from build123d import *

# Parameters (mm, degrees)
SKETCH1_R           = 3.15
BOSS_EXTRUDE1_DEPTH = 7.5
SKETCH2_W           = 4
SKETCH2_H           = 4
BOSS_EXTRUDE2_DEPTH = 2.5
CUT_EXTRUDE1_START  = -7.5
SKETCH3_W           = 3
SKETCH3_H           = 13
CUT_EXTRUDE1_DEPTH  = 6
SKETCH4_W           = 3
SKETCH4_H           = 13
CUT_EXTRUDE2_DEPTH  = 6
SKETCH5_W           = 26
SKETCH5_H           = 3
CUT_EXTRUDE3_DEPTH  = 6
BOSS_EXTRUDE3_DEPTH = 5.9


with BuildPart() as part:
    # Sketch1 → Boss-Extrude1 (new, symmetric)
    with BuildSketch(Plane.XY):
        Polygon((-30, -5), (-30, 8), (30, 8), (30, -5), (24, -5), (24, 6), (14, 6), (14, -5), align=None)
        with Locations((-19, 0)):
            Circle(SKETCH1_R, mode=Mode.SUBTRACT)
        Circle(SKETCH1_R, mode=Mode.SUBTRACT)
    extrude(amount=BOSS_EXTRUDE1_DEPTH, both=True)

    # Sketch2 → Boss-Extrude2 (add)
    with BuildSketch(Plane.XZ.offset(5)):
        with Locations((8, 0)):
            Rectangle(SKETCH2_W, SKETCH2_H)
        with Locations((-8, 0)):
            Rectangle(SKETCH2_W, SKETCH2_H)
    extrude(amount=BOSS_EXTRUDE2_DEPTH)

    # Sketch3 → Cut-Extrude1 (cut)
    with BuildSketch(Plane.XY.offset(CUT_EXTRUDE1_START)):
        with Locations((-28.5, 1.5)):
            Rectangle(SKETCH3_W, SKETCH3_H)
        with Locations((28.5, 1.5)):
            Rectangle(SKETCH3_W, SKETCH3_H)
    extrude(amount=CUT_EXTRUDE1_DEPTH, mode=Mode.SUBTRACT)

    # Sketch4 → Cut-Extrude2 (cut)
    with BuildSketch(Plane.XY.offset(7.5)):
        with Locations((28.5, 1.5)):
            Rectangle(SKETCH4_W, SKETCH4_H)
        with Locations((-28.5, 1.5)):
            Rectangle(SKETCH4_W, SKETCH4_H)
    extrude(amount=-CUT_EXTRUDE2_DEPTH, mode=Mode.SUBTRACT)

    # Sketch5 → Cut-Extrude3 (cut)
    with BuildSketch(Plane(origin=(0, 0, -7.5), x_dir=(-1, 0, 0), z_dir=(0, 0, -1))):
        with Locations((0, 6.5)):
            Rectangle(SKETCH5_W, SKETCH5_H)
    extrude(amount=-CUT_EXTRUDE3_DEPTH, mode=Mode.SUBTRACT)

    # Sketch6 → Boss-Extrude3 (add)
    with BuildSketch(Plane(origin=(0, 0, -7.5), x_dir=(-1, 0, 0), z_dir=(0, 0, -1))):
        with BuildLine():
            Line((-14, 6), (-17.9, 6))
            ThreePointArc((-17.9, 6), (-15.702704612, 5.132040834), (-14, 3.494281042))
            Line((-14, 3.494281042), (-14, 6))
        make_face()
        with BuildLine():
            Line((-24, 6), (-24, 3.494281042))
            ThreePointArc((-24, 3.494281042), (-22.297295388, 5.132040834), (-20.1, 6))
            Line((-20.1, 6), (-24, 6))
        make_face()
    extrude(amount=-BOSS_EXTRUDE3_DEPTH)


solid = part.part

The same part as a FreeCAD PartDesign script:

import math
import FreeCAD as App
import Part
import Sketcher
from FreeCAD import Vector


def add_polygon(sketch, points):
    """Adds a closed chain of lines whose ends are joined by coincident constraints."""
    first, n = sketch.GeometryCount, len(points)
    for a, b in zip(points, points[1:] + points[:1]):
        sketch.addGeometry(Part.LineSegment(App.Vector(*a, 0), App.Vector(*b, 0)), False)
    for i in range(n):
        sketch.addConstraint(Sketcher.Constraint("Coincident", first + i, 2, first + (i + 1) % n, 1))

doc = App.newDocument("Part")
params = doc.addObject("Spreadsheet::Sheet", "Params")
for row, (alias, value) in enumerate([
    ("sketch1_diameter", "6.3 mm"),
    ("sketch1_width", "44 mm"),
    ("sketch1_width2", "10 mm"),
    ("sketch1_width3", "6 mm"),
    ("sketch1_height", "13 mm"),
    ("pad1_length", "15 mm"),
    ("sketch2_width", "4 mm"),
    ("pad2_length", "2.5 mm"),
    ("sketch3_width", "3 mm"),
    ("sketch3_height", "13 mm"),
    ("pocket1_length", "6 mm"),
    ("sketch4_width", "3 mm"),
    ("sketch4_height", "13 mm"),
    ("pocket2_length", "6 mm"),
    ("sketch5_width", "26 mm"),
    ("sketch5_height", "3 mm"),
    ("pocket3_length", "6 mm"),
    ("sketch6_radius", "6.1 mm"),
    ("sketch6_width", "3.9 mm"),
    ("pad3_length", "5.9 mm"),
], start=1):
    params.set(f"A{row}", alias)
    params.set(f"B{row}", "=" + value)
    params.setAlias(f"B{row}", alias)

body = doc.addObject("PartDesign::Body", "Body")

sketch1 = body.newObject("Sketcher::SketchObject", "Sketch")
sketch1.AttachmentSupport = (doc.getObject("XY_Plane"), [""])
sketch1.MapMode = "FlatFace"
add_polygon(sketch1, [(-30, 8), (-30, -5), (14, -5), (14, 6), (24, 6), (24, -5), (30, -5), (30, 8)])
sketch1.addGeometry(Part.Circle(Vector(0, 0, 0), Vector(0, 0, 1), 3.1), False)
sketch1.addGeometry(Part.Circle(Vector(-19, 0, 0), Vector(0, 0, 1), 3.1), False)
sketch1.addConstraint(Sketcher.Constraint("Vertical", 0))
sketch1.addConstraint(Sketcher.Constraint("Horizontal", 1))
sketch1.addConstraint(Sketcher.Constraint("Vertical", 2))
sketch1.addConstraint(Sketcher.Constraint("Horizontal", 3))
sketch1.addConstraint(Sketcher.Constraint("Vertical", 4))
sketch1.addConstraint(Sketcher.Constraint("Horizontal", 5))
sketch1.addConstraint(Sketcher.Constraint("Vertical", 6))
sketch1.addConstraint(Sketcher.Constraint("Horizontal", 7))
sketch1.addConstraint(Sketcher.Constraint("Coincident", 8, 3, -1, 1))
sketch1.addConstraint(Sketcher.Constraint("Equal", 8, 9))
sketch1.addConstraint(Sketcher.Constraint("Symmetric", 0, 2, 5, 2, -2))
sketch1.addConstraint(Sketcher.Constraint("PointOnObject", 9, 3, -1))
sketch1.addConstraint(Sketcher.Constraint("Diameter", 8, 6.3))
sketch1.addConstraint(Sketcher.Constraint("DistanceX", 1, 1, 1, 2, 44.0))
sketch1.addConstraint(Sketcher.Constraint("DistanceX", 3, 1, 3, 2, 10.0))
sketch1.addConstraint(Sketcher.Constraint("DistanceX", 5, 1, 5, 2, 6.0))
sketch1.addConstraint(Sketcher.Constraint("DistanceY", 0, 2, 0, 1, 13.0))
sketch1.addConstraint(Sketcher.Constraint("DistanceY", 2, 1, 2, 2, 11.0))
sketch1.addConstraint(Sketcher.Constraint("DistanceX", 9, 3, -1, 1, 19.0))
sketch1.addConstraint(Sketcher.Constraint("DistanceY", 0, 2, -1, 1, 5.0))
sketch1.setExpression("Constraints[20]", "Params.sketch1_diameter")
sketch1.setExpression("Constraints[21]", "Params.sketch1_width")
sketch1.setExpression("Constraints[22]", "Params.sketch1_width2")
sketch1.setExpression("Constraints[23]", "Params.sketch1_width3")
sketch1.setExpression("Constraints[24]", "Params.sketch1_height")
pad1 = body.newObject("PartDesign::Pad", "Pad")
pad1.Profile = sketch1
pad1.setExpression("Length", "Params.pad1_length")
pad1.Midplane = True

sketch2 = body.newObject("Sketcher::SketchObject", "Sketch001")
sketch2.AttachmentSupport = (doc.getObject("XZ_Plane"), [""])
sketch2.MapMode = "FlatFace"
sketch2.AttachmentOffset = App.Placement(Vector(0, 0, 5), App.Rotation())
add_polygon(sketch2, [(6, 2), (6, -2), (10, -2), (10, 2)])
add_polygon(sketch2, [(-10, 2), (-10, -2), (-6, -2), (-6, 2)])
sketch2.addConstraint(Sketcher.Constraint("Vertical", 0))
sketch2.addConstraint(Sketcher.Constraint("Horizontal", 1))
sketch2.addConstraint(Sketcher.Constraint("Vertical", 2))
sketch2.addConstraint(Sketcher.Constraint("Horizontal", 3))
sketch2.addConstraint(Sketcher.Constraint("Vertical", 4))
sketch2.addConstraint(Sketcher.Constraint("Horizontal", 5))
sketch2.addConstraint(Sketcher.Constraint("Vertical", 6))
sketch2.addConstraint(Sketcher.Constraint("Horizontal", 7))
sketch2.addConstraint(Sketcher.Constraint("Symmetric", 2, 2, 4, 2, -1, 1))
sketch2.addConstraint(Sketcher.Constraint("Symmetric", 0, 2, 6, 2, -1, 1))
sketch2.addConstraint(Sketcher.Constraint("Horizontal", 1, 2, 4, 2))
sketch2.addConstraint(Sketcher.Constraint("Equal", 7, 0))
sketch2.addConstraint(Sketcher.Constraint("DistanceX", 1, 1, 1, 2, 4.0))
sketch2.addConstraint(Sketcher.Constraint("DistanceX", -1, 1, 0, 2, 6.0))
sketch2.setExpression("Constraints[20]", "Params.sketch2_width")
pad2 = body.newObject("PartDesign::Pad", "Pad001")
pad2.Profile = sketch2
pad2.setExpression("Length", "Params.pad2_length")

sketch3 = body.newObject("Sketcher::SketchObject", "Sketch002")
sketch3.AttachmentSupport = (doc.getObject("XY_Plane"), [""])
sketch3.MapMode = "FlatFace"
sketch3.AttachmentOffset = App.Placement(Vector(0, 0, -7.5), App.Rotation())
add_polygon(sketch3, [(-30, 8), (-30, -5), (-27, -5), (-27, 8)])
add_polygon(sketch3, [(27, 8), (27, -5), (30, -5), (30, 8)])
sketch3.addConstraint(Sketcher.Constraint("Vertical", 0))
sketch3.addConstraint(Sketcher.Constraint("Horizontal", 1))
sketch3.addConstraint(Sketcher.Constraint("Vertical", 2))
sketch3.addConstraint(Sketcher.Constraint("Horizontal", 3))
sketch3.addConstraint(Sketcher.Constraint("Vertical", 4))
sketch3.addConstraint(Sketcher.Constraint("Horizontal", 5))
sketch3.addConstraint(Sketcher.Constraint("Vertical", 6))
sketch3.addConstraint(Sketcher.Constraint("Horizontal", 7))
sketch3.addConstraint(Sketcher.Constraint("Symmetric", 1, 2, 4, 2, -2))
sketch3.addConstraint(Sketcher.Constraint("Symmetric", 3, 2, 6, 2, -2))
sketch3.addConstraint(Sketcher.Constraint("DistanceX", 1, 1, 1, 2, 3.0))
sketch3.addConstraint(Sketcher.Constraint("DistanceY", 0, 2, 0, 1, 13.0))
sketch3.addConstraint(Sketcher.Constraint("DistanceX", 0, 2, -1, 1, 30.0))
sketch3.addConstraint(Sketcher.Constraint("DistanceY", 0, 2, -1, 1, 5.0))
sketch3.setExpression("Constraints[18]", "Params.sketch3_width")
sketch3.setExpression("Constraints[19]", "Params.sketch3_height")
pocket1 = body.newObject("PartDesign::Pocket", "Pocket")
pocket1.Profile = sketch3
pocket1.setExpression("Length", "Params.pocket1_length")
pocket1.Reversed = True

sketch4 = body.newObject("Sketcher::SketchObject", "Sketch003")
sketch4.AttachmentSupport = (doc.getObject("XY_Plane"), [""])
sketch4.MapMode = "FlatFace"
sketch4.AttachmentOffset = App.Placement(Vector(0, 0, 7.5), App.Rotation())
add_polygon(sketch4, [(27, 8), (27, -5), (30, -5), (30, 8)])
add_polygon(sketch4, [(-30, 8), (-30, -5), (-27, -5), (-27, 8)])
sketch4.addConstraint(Sketcher.Constraint("Vertical", 0))
sketch4.addConstraint(Sketcher.Constraint("Horizontal", 1))
sketch4.addConstraint(Sketcher.Constraint("Vertical", 2))
sketch4.addConstraint(Sketcher.Constraint("Horizontal", 3))
sketch4.addConstraint(Sketcher.Constraint("Vertical", 4))
sketch4.addConstraint(Sketcher.Constraint("Horizontal", 5))
sketch4.addConstraint(Sketcher.Constraint("Vertical", 6))
sketch4.addConstraint(Sketcher.Constraint("Horizontal", 7))
sketch4.addConstraint(Sketcher.Constraint("Symmetric", 1, 2, 4, 2, -2))
sketch4.addConstraint(Sketcher.Constraint("Symmetric", 3, 2, 6, 2, -2))
sketch4.addConstraint(Sketcher.Constraint("DistanceX", 1, 1, 1, 2, 3.0))
sketch4.addConstraint(Sketcher.Constraint("DistanceY", 0, 2, 0, 1, 13.0))
sketch4.addConstraint(Sketcher.Constraint("DistanceX", -1, 1, 0, 2, 27.0))
sketch4.addConstraint(Sketcher.Constraint("DistanceY", 0, 2, -1, 1, 5.0))
sketch4.setExpression("Constraints[18]", "Params.sketch4_width")
sketch4.setExpression("Constraints[19]", "Params.sketch4_height")
pocket2 = body.newObject("PartDesign::Pocket", "Pocket001")
pocket2.Profile = sketch4
pocket2.setExpression("Length", "Params.pocket2_length")

sketch5 = body.newObject("Sketcher::SketchObject", "Sketch004")
sketch5.AttachmentSupport = (doc.getObject("XY_Plane"), [""])
sketch5.MapMode = "FlatFace"
sketch5.AttachmentOffset = App.Placement(Vector(0, 0, -7.5), App.Rotation())
add_polygon(sketch5, [(13, 8), (13, 5), (-13, 5), (-13, 8)])
sketch5.addConstraint(Sketcher.Constraint("Vertical", 0))
sketch5.addConstraint(Sketcher.Constraint("Horizontal", 1))
sketch5.addConstraint(Sketcher.Constraint("Vertical", 2))
sketch5.addConstraint(Sketcher.Constraint("Horizontal", 3))
sketch5.addConstraint(Sketcher.Constraint("DistanceX", 1, 2, 1, 1, 26.0))
sketch5.addConstraint(Sketcher.Constraint("DistanceY", 0, 2, 0, 1, 3.0))
sketch5.addConstraint(Sketcher.Constraint("DistanceX", -1, 1, 0, 2, 13.0))
sketch5.addConstraint(Sketcher.Constraint("DistanceY", -1, 1, 0, 2, 5.0))
sketch5.setExpression("Constraints[8]", "Params.sketch5_width")
sketch5.setExpression("Constraints[9]", "Params.sketch5_height")
pocket3 = body.newObject("PartDesign::Pocket", "Pocket002")
pocket3.Profile = sketch5
pocket3.setExpression("Length", "Params.pocket3_length")
pocket3.Reversed = True

sketch6 = body.newObject("Sketcher::SketchObject", "Sketch005")
sketch6.AttachmentSupport = (doc.getObject("XY_Plane"), [""])
sketch6.MapMode = "FlatFace"
sketch6.AttachmentOffset = App.Placement(Vector(0, 0, -7.5), App.Rotation())
sketch6.addGeometry(Part.LineSegment(Vector(14, 6, 0), Vector(17.9, 6, 0)), False)
sketch6.addGeometry(Part.ArcOfCircle(Part.Circle(Vector(19, 0, 0), Vector(0, 0, 1), 6.1), math.radians(100), math.radians(145)), False)
sketch6.addGeometry(Part.LineSegment(Vector(14, 3.5, 0), Vector(14, 6, 0)), False)
sketch6.addGeometry(Part.LineSegment(Vector(24, 6, 0), Vector(24, 3.5, 0)), False)
sketch6.addGeometry(Part.ArcOfCircle(Part.Circle(Vector(19, 0, 0), Vector(0, 0, 1), 6.1), math.radians(35), math.radians(80)), False)
sketch6.addGeometry(Part.LineSegment(Vector(20.1, 6, 0), Vector(24, 6, 0)), False)
sketch6.addConstraint(Sketcher.Constraint("Coincident", 0, 2, 1, 1))
sketch6.addConstraint(Sketcher.Constraint("Coincident", 1, 2, 2, 1))
sketch6.addConstraint(Sketcher.Constraint("Coincident", 2, 2, 0, 1))
sketch6.addConstraint(Sketcher.Constraint("Coincident", 3, 2, 4, 1))
sketch6.addConstraint(Sketcher.Constraint("Coincident", 4, 2, 5, 1))
sketch6.addConstraint(Sketcher.Constraint("Coincident", 5, 2, 3, 1))
sketch6.addConstraint(Sketcher.Constraint("Horizontal", 0))
sketch6.addConstraint(Sketcher.Constraint("Vertical", 2))
sketch6.addConstraint(Sketcher.Constraint("Vertical", 3))
sketch6.addConstraint(Sketcher.Constraint("Horizontal", 5))
sketch6.addConstraint(Sketcher.Constraint("Coincident", 4, 3, 1, 3))
sketch6.addConstraint(Sketcher.Constraint("Equal", 1, 4))
sketch6.addConstraint(Sketcher.Constraint("PointOnObject", 1, 3, -1))
sketch6.addConstraint(Sketcher.Constraint("Horizontal", 1, 2, 3, 2))
sketch6.addConstraint(Sketcher.Constraint("Horizontal", 2, 2, 4, 2))
sketch6.addConstraint(Sketcher.Constraint("Radius", 1, 6.1))
sketch6.addConstraint(Sketcher.Constraint("DistanceX", 0, 1, 0, 2, 3.9))
sketch6.addConstraint(Sketcher.Constraint("DistanceX", -1, 1, 1, 3, 19.0))
sketch6.addConstraint(Sketcher.Constraint("DistanceY", -1, 1, 0, 2, 6.0))
sketch6.setExpression("Constraints[15]", "Params.sketch6_radius")
sketch6.setExpression("Constraints[16]", "Params.sketch6_width")
pad3 = body.newObject("PartDesign::Pad", "Pad002")
pad3.Profile = sketch6
pad3.setExpression("Length", "Params.pad3_length")

doc.recompute()
